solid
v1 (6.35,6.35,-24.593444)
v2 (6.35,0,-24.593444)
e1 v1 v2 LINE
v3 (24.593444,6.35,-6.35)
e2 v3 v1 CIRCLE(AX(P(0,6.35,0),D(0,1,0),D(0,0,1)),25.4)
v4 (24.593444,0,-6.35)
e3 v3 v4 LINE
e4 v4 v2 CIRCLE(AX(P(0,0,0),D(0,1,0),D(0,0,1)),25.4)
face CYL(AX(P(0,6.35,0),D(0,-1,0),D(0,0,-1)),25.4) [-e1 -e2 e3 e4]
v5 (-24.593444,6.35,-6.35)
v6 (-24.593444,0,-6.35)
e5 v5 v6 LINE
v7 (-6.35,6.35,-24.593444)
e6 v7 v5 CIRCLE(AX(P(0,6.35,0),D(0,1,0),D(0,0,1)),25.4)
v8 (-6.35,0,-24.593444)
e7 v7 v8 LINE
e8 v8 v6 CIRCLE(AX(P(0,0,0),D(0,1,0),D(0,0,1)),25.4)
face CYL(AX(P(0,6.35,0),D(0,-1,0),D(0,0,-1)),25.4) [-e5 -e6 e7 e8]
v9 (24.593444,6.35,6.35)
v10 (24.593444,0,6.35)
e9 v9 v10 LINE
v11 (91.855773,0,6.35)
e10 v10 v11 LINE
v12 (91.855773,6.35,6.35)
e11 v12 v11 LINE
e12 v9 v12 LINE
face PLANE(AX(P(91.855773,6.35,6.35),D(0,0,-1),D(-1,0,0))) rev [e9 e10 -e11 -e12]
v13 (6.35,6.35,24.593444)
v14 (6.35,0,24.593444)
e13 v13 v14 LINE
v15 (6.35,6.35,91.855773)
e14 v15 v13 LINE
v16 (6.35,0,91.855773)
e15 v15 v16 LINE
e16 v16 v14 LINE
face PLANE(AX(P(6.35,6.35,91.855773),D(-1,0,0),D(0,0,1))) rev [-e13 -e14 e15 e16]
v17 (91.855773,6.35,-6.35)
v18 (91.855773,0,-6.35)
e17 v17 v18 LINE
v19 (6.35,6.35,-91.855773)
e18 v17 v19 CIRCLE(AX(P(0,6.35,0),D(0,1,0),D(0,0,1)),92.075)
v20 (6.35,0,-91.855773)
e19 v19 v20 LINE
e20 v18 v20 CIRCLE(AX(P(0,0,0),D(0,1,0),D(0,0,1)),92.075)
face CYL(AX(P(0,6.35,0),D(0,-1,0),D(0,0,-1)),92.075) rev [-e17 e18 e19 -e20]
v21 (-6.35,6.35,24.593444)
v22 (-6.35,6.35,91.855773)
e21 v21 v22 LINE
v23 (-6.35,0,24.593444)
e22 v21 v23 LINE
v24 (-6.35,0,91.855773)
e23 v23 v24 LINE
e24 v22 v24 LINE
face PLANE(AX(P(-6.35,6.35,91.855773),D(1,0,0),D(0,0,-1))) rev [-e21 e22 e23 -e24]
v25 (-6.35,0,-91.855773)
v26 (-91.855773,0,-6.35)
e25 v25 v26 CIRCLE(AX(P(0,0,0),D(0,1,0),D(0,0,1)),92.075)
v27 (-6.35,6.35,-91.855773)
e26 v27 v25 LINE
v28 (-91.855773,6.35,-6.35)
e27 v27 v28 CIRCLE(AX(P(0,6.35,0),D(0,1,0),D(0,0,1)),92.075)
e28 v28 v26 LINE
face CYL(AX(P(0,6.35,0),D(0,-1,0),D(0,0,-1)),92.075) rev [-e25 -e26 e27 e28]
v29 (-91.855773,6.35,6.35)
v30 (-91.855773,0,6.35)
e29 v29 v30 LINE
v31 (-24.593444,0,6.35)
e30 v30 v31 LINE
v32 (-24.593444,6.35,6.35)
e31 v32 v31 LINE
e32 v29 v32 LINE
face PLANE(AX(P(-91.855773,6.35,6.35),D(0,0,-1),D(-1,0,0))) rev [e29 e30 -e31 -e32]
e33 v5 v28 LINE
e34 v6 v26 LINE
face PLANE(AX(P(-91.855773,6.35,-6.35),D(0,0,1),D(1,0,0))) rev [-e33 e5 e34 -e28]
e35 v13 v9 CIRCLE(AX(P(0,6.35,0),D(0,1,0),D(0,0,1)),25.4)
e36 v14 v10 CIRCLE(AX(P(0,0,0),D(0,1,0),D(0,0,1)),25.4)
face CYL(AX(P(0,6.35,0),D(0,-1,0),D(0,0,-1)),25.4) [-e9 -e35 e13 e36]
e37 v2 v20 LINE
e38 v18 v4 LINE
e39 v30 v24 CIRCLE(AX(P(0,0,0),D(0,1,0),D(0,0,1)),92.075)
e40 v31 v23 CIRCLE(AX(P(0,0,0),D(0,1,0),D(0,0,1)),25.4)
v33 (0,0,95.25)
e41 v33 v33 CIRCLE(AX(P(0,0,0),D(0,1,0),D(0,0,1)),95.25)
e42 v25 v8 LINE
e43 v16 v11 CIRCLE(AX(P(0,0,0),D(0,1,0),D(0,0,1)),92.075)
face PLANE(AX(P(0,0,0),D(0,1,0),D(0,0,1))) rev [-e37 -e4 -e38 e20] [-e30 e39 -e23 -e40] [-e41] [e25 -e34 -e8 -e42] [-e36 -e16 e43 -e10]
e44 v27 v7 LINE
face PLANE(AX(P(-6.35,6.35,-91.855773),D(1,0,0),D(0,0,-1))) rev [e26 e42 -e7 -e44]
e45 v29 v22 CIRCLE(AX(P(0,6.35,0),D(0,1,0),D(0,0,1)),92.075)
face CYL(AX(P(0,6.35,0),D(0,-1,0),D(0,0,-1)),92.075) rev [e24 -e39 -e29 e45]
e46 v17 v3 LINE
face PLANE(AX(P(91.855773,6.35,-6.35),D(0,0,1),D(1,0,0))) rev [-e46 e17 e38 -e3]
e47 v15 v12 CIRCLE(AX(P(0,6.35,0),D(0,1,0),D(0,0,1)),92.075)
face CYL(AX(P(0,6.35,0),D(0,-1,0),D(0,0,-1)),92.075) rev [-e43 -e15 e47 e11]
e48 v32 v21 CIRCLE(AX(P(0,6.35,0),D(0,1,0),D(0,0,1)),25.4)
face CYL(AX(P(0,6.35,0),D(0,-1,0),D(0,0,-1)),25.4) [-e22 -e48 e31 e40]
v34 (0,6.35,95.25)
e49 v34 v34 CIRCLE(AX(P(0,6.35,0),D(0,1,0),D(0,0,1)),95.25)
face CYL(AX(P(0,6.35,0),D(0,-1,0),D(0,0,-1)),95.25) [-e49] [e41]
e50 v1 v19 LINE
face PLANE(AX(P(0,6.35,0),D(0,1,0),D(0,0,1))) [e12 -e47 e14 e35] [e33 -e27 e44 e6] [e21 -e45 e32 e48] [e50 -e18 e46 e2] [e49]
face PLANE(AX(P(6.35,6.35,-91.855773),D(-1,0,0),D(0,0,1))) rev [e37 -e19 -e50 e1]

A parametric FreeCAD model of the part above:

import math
import FreeCAD as App
import Part
import Sketcher
Q = App.Units.Quantity

doc = App.newDocument("Part")
body = doc.addObject("PartDesign::Body", "Body")

sketch1 = body.newObject("Sketcher::SketchObject", "Sketch")
sketch1.AttachmentSupport = (doc.getObject("XZ_Plane"), [""])
sketch1.MapMode = "FlatFace"
sketch1.addGeometry([
    Part.LineSegment(App.Vector(-25, -6, 0), App.Vector(-92, -6, 0)),
    Part.ArcOfCircle(Part.Circle(App.Vector(0, 0, 0), App.Vector(0, 0, 1), 92), math.radians(176.05), math.radians(183.95)),
    Part.LineSegment(App.Vector(-92, 6, 0), App.Vector(-25, 6, 0)),
    Part.ArcOfCircle(Part.Circle(App.Vector(0, 0, 0), App.Vector(0, 0, 1), 25), math.radians(166), math.radians(194)),
], False)
sketch1.addConstraint([
    Sketcher.Constraint("Coincident", 0, 2, 1, 2),
    Sketcher.Constraint("Coincident", 1, 1, 2, 1),
    Sketcher.Constraint("Coincident", 2, 2, 3, 1),
    Sketcher.Constraint("Coincident", 3, 2, 0, 1),
    Sketcher.Constraint("Horizontal", 0),
    Sketcher.Constraint("Horizontal", 2),
    Sketcher.Constraint("Coincident", 1, 3, -1, 1),
    Sketcher.Constraint("Coincident", 3, 3, -1, 1),
    Sketcher.Constraint("Vertical", 0, 2, 1, 1),
    Sketcher.Constraint("Radius", 3, Q("1 in")),
    Sketcher.Constraint("Radius", 1, Q("3.625 in")),
    Sketcher.Constraint("DistanceY", 0, 2, 1, 1, Q("0.5 in")),
])
pad1 = body.newObject("PartDesign::Pad", "Pad")
pad1.Profile = sketch1
pad1.Length = Q("0.25 in")
pad1.Reversed = True

sketch2 = body.newObject("Sketcher::SketchObject", "Sketch001")
sketch2.AttachmentSupport = (doc.getObject("XZ_Plane"), [""])
sketch2.MapMode = "FlatFace"
sketch2.addGeometry(Part.Circle(App.Vector(0, 0, 0), App.Vector(0, 0, 1), 25), False)
sketch2.addConstraint([
    Sketcher.Constraint("Coincident", 0, 3, -1, 1),
    Sketcher.Constraint("Diameter", 0, Q("2 in")),
])
pad2 = body.newObject("PartDesign::Pad", "Pad001")
pad2.Profile = sketch2
pad2.Length = Q("0.25 in")
pad2.Reversed = True

sketch3 = body.newObject("Sketcher::SketchObject", "Sketch002")
sketch3.AttachmentSupport = (doc.getObject("XZ_Plane"), [""])
sketch3.MapMode = "FlatFace"
sketch3.addGeometry([
    Part.Circle(App.Vector(0, 0, 0), App.Vector(0, 0, 1), 95),
    Part.Circle(App.Vector(0, 0, 0), App.Vector(0, 0, 1), 92),
], False)
sketch3.addConstraint([
    Sketcher.Constraint("Coincident", 0, 3, -1, 1),
    Sketcher.Constraint("Coincident", 1, 3, -1, 1),
    Sketcher.Constraint("Diameter", 0, Q("7.5 in")),
    Sketcher.Constraint("Diameter", 1, Q("7.25 in")),
])
pad3 = body.newObject("PartDesign::Pad", "Pad002")
pad3.Profile = sketch3
pad3.Length = Q("0.25 in")
pad3.Reversed = True
doc.recompute()

polarpattern = body.newObject("PartDesign::PolarPattern", "PolarPattern")
polarpattern.Originals = [pad1]
polarpattern.Axis = (doc.getObject("Y_Axis"), [""])
polarpattern.Angle = 360
polarpattern.Occurrences = 4
body.Tip = polarpattern

doc.recompute()
